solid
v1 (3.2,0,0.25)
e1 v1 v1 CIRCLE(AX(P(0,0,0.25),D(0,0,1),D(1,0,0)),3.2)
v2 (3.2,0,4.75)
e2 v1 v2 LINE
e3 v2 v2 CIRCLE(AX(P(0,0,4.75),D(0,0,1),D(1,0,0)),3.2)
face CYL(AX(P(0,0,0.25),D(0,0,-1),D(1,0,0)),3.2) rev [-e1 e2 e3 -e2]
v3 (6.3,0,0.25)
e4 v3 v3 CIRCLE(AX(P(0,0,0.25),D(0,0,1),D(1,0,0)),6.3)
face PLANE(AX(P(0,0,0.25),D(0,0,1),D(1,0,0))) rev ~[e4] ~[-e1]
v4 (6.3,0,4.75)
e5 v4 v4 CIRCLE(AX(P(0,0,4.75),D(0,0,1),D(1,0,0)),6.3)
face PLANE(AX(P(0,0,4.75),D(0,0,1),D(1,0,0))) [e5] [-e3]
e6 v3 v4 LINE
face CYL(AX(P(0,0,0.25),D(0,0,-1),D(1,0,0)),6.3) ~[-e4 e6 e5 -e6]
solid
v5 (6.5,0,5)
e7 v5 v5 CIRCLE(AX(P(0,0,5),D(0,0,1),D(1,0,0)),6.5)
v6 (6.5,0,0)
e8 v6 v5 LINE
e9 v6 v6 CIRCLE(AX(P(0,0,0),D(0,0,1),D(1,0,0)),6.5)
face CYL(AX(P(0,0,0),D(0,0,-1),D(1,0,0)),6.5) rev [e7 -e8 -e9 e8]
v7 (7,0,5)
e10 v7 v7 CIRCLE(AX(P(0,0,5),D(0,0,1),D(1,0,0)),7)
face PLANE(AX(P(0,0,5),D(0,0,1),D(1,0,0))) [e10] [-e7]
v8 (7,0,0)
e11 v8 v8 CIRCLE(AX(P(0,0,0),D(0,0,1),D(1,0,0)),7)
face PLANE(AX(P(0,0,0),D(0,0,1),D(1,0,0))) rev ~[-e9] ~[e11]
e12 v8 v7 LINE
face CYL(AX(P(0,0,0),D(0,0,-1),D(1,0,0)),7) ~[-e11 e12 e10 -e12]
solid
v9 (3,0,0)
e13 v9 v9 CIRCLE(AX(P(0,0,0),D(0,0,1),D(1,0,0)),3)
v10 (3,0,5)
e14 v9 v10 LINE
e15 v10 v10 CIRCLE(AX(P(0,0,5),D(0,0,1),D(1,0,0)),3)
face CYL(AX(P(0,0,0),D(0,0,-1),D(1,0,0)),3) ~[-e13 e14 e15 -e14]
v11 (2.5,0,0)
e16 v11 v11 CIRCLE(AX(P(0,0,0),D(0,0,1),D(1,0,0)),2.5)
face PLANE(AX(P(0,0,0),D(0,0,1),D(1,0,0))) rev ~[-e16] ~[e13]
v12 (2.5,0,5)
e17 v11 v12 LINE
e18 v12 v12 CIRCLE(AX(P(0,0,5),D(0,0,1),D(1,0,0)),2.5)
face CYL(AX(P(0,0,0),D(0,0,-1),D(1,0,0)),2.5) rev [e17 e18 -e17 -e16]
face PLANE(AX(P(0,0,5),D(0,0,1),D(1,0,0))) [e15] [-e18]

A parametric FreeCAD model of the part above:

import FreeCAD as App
import Part
import Sketcher

doc = App.newDocument("Part")
body = doc.addObject("PartDesign::Body", "Body")
body.AllowCompound = True

# Sketch on XY plane
sketch1 = body.newObject("Sketcher::SketchObject", "Sketch")
sketch1.AttachmentSupport = (doc.getObject("XY_Plane"), [""])
sketch1.MapMode = "FlatFace"
sketch1.addGeometry([
    Part.Circle(App.Vector(0, 0, 0), App.Vector(0, 0, 1), 7),
    Part.Circle(App.Vector(0, 0, 0), App.Vector(0, 0, 1), 6.5),
    Part.Circle(App.Vector(0, 0, 0), App.Vector(0, 0, 1), 3),
    Part.Circle(App.Vector(0, 0, 0), App.Vector(0, 0, 1), 2.5),
], False)
sketch1.addConstraint([
    Sketcher.Constraint("Coincident", 0, 3, -1, 1),
    Sketcher.Constraint("Coincident", 1, 3, -1, 1),
    Sketcher.Constraint("Coincident", 2, 3, -1, 1),
    Sketcher.Constraint("Coincident", 3, 3, -1, 1),
    Sketcher.Constraint("Diameter", 0, 14.0),
    Sketcher.Constraint("Diameter", 1, 13.0),
    Sketcher.Constraint("Diameter", 2, 6.0),
    Sketcher.Constraint("Diameter", 3, 5.0),
])
pad1 = body.newObject("PartDesign::Pad", "Pad")
pad1.Profile = sketch1
pad1.Length = 5
body2 = doc.addObject("PartDesign::Body", "Body001")

# Sketch on XY plane
sketch2 = body2.newObject("Sketcher::SketchObject", "Sketch001")
sketch2.AttachmentSupport = (doc.getObject("XY_Plane001"), [""])
sketch2.MapMode = "FlatFace"
sketch2.addGeometry([
    Part.Circle(App.Vector(0, 0, 0), App.Vector(0, 0, 1), 6.3),
    Part.Circle(App.Vector(0, 0, 0), App.Vector(0, 0, 1), 3.2),
], False)
sketch2.addConstraint([
    Sketcher.Constraint("Coincident", 0, 3, -1, 1),
    Sketcher.Constraint("Coincident", 1, 3, -1, 1),
    Sketcher.Constraint("Diameter", 0, 12.6),
    Sketcher.Constraint("Diameter", 1, 6.4),
])
pad2 = body2.newObject("PartDesign::Pad", "Pad001")
pad2.Profile = sketch2
pad2.Length = 4.5
body3 = doc.addObject("PartDesign::Body", "Body002")
doc.recompute()

body2.Placement = App.Placement(App.Vector(0, 0, 0.25), App.Rotation(App.Vector(0, 0, 1), 0))
boolean = body3.newObject("PartDesign::Boolean", "Boolean")
boolean.Type = "Fuse"
boolean.addObjects([body2])

doc.recompute()
